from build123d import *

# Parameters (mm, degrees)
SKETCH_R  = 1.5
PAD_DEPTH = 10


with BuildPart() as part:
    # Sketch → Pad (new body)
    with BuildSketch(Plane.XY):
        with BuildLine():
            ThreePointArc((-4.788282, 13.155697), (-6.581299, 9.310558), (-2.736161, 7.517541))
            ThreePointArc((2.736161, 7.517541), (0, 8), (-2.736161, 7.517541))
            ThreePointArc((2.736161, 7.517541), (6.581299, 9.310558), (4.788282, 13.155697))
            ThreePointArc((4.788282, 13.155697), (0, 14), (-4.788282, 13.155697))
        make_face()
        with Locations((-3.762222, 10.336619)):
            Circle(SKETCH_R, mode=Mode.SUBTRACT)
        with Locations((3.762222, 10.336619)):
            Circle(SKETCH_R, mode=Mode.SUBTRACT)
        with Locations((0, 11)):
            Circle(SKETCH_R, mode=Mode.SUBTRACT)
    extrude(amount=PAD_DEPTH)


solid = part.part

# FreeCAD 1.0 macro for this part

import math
import FreeCAD as App
import Part
import Sketcher
Q = App.Units.Quantity

doc = App.newDocument("Part")
params = doc.addObject("Spreadsheet::Sheet", "Params")
for row, (alias, value) in enumerate([
    ("sketch1_diameter", "3 mm"),
    ("sketch1_radius", "3 mm"),
    ("sketch1_radius2", "8 mm"),
    ("pad1_length", "10 mm"),
], start=1):
    params.set(f"A{row}", alias)
    params.set(f"B{row}", "=" + value)
    params.setAlias(f"B{row}", alias)

body = doc.addObject("PartDesign::Body", "Body")

sketch1 = body.newObject("Sketcher::SketchObject", "Sketch")
sketch1.AttachmentSupport = (doc.getObject("XY_Plane"), [""])
sketch1.MapMode = "FlatFace"
sketch1.addGeometry([
    Part.ArcOfCircle(Part.Circle(App.Vector(-3.8, 10.3, 0), App.Vector(0, 0, 1), 3), math.radians(110), math.radians(290)),
    Part.ArcOfCircle(Part.Circle(App.Vector(0, 0, 0), App.Vector(0, 0, 1), 8), math.radians(70), math.radians(110)),
    Part.ArcOfCircle(Part.Circle(App.Vector(3.8, 10.3, 0), App.Vector(0, 0, 1), 3), math.radians(-110), math.radians(70)),
    Part.ArcOfCircle(Part.Circle(App.Vector(0, 0, 0), App.Vector(0, 0, 1), 14), math.radians(70), math.radians(110)),
    Part.Circle(App.Vector(-3.8, 10.3, 0), App.Vector(0, 0, 1), 1.5),
    Part.Circle(App.Vector(3.8, 10.3, 0), App.Vector(0, 0, 1), 1.5),
    Part.Circle(App.Vector(0, 11, 0), App.Vector(0, 0, 1), 1.5),
], False)
sketch1.addConstraint([
    Sketcher.Constraint("Tangent", 0, 2, 1, 2),
    Sketcher.Constraint("Tangent", 1, 1, 2, 1),
    Sketcher.Constraint("Tangent", 2, 2, 3, 1),
    Sketcher.Constraint("Tangent", 3, 2, 0, 1),
    Sketcher.Constraint("Coincident", 1, 3, -1, 1),
    Sketcher.Constraint("Coincident", 3, 3, -1, 1),
    Sketcher.Constraint("Coincident", 4, 3, 0, 3),
    Sketcher.Constraint("Coincident", 5, 3, 2, 3),
    Sketcher.Constraint("Equal", 4, 5),
    Sketcher.Constraint("Equal", 5, 6),
    Sketcher.Constraint("PointOnObject", 6, 3, -2),
    Sketcher.Constraint("Horizontal", 0, 3, 2, 3),
    Sketcher.Constraint("Diameter", 4, Q("3 mm")),
    Sketcher.Constraint("Radius", 0, Q("3 mm")),
    Sketcher.Constraint("Radius", 1, Q("8 mm")),
    Sketcher.Constraint("DistanceY", -1, 1, 6, 3, Q("11 mm")),
    Sketcher.Constraint("DistanceX", 0, 3, -1, 1, Q("3.762221 mm")),
])
sketch1.setExpression("Constraints[12]", "Params.sketch1_diameter")
sketch1.setExpression("Constraints[13]", "Params.sketch1_radius")
sketch1.setExpression("Constraints[14]", "Params.sketch1_radius2")
pad1 = body.newObject("PartDesign::Pad", "Pad")
pad1.Profile = sketch1
pad1.setExpression("Length", "Params.pad1_length")

doc.recompute()
